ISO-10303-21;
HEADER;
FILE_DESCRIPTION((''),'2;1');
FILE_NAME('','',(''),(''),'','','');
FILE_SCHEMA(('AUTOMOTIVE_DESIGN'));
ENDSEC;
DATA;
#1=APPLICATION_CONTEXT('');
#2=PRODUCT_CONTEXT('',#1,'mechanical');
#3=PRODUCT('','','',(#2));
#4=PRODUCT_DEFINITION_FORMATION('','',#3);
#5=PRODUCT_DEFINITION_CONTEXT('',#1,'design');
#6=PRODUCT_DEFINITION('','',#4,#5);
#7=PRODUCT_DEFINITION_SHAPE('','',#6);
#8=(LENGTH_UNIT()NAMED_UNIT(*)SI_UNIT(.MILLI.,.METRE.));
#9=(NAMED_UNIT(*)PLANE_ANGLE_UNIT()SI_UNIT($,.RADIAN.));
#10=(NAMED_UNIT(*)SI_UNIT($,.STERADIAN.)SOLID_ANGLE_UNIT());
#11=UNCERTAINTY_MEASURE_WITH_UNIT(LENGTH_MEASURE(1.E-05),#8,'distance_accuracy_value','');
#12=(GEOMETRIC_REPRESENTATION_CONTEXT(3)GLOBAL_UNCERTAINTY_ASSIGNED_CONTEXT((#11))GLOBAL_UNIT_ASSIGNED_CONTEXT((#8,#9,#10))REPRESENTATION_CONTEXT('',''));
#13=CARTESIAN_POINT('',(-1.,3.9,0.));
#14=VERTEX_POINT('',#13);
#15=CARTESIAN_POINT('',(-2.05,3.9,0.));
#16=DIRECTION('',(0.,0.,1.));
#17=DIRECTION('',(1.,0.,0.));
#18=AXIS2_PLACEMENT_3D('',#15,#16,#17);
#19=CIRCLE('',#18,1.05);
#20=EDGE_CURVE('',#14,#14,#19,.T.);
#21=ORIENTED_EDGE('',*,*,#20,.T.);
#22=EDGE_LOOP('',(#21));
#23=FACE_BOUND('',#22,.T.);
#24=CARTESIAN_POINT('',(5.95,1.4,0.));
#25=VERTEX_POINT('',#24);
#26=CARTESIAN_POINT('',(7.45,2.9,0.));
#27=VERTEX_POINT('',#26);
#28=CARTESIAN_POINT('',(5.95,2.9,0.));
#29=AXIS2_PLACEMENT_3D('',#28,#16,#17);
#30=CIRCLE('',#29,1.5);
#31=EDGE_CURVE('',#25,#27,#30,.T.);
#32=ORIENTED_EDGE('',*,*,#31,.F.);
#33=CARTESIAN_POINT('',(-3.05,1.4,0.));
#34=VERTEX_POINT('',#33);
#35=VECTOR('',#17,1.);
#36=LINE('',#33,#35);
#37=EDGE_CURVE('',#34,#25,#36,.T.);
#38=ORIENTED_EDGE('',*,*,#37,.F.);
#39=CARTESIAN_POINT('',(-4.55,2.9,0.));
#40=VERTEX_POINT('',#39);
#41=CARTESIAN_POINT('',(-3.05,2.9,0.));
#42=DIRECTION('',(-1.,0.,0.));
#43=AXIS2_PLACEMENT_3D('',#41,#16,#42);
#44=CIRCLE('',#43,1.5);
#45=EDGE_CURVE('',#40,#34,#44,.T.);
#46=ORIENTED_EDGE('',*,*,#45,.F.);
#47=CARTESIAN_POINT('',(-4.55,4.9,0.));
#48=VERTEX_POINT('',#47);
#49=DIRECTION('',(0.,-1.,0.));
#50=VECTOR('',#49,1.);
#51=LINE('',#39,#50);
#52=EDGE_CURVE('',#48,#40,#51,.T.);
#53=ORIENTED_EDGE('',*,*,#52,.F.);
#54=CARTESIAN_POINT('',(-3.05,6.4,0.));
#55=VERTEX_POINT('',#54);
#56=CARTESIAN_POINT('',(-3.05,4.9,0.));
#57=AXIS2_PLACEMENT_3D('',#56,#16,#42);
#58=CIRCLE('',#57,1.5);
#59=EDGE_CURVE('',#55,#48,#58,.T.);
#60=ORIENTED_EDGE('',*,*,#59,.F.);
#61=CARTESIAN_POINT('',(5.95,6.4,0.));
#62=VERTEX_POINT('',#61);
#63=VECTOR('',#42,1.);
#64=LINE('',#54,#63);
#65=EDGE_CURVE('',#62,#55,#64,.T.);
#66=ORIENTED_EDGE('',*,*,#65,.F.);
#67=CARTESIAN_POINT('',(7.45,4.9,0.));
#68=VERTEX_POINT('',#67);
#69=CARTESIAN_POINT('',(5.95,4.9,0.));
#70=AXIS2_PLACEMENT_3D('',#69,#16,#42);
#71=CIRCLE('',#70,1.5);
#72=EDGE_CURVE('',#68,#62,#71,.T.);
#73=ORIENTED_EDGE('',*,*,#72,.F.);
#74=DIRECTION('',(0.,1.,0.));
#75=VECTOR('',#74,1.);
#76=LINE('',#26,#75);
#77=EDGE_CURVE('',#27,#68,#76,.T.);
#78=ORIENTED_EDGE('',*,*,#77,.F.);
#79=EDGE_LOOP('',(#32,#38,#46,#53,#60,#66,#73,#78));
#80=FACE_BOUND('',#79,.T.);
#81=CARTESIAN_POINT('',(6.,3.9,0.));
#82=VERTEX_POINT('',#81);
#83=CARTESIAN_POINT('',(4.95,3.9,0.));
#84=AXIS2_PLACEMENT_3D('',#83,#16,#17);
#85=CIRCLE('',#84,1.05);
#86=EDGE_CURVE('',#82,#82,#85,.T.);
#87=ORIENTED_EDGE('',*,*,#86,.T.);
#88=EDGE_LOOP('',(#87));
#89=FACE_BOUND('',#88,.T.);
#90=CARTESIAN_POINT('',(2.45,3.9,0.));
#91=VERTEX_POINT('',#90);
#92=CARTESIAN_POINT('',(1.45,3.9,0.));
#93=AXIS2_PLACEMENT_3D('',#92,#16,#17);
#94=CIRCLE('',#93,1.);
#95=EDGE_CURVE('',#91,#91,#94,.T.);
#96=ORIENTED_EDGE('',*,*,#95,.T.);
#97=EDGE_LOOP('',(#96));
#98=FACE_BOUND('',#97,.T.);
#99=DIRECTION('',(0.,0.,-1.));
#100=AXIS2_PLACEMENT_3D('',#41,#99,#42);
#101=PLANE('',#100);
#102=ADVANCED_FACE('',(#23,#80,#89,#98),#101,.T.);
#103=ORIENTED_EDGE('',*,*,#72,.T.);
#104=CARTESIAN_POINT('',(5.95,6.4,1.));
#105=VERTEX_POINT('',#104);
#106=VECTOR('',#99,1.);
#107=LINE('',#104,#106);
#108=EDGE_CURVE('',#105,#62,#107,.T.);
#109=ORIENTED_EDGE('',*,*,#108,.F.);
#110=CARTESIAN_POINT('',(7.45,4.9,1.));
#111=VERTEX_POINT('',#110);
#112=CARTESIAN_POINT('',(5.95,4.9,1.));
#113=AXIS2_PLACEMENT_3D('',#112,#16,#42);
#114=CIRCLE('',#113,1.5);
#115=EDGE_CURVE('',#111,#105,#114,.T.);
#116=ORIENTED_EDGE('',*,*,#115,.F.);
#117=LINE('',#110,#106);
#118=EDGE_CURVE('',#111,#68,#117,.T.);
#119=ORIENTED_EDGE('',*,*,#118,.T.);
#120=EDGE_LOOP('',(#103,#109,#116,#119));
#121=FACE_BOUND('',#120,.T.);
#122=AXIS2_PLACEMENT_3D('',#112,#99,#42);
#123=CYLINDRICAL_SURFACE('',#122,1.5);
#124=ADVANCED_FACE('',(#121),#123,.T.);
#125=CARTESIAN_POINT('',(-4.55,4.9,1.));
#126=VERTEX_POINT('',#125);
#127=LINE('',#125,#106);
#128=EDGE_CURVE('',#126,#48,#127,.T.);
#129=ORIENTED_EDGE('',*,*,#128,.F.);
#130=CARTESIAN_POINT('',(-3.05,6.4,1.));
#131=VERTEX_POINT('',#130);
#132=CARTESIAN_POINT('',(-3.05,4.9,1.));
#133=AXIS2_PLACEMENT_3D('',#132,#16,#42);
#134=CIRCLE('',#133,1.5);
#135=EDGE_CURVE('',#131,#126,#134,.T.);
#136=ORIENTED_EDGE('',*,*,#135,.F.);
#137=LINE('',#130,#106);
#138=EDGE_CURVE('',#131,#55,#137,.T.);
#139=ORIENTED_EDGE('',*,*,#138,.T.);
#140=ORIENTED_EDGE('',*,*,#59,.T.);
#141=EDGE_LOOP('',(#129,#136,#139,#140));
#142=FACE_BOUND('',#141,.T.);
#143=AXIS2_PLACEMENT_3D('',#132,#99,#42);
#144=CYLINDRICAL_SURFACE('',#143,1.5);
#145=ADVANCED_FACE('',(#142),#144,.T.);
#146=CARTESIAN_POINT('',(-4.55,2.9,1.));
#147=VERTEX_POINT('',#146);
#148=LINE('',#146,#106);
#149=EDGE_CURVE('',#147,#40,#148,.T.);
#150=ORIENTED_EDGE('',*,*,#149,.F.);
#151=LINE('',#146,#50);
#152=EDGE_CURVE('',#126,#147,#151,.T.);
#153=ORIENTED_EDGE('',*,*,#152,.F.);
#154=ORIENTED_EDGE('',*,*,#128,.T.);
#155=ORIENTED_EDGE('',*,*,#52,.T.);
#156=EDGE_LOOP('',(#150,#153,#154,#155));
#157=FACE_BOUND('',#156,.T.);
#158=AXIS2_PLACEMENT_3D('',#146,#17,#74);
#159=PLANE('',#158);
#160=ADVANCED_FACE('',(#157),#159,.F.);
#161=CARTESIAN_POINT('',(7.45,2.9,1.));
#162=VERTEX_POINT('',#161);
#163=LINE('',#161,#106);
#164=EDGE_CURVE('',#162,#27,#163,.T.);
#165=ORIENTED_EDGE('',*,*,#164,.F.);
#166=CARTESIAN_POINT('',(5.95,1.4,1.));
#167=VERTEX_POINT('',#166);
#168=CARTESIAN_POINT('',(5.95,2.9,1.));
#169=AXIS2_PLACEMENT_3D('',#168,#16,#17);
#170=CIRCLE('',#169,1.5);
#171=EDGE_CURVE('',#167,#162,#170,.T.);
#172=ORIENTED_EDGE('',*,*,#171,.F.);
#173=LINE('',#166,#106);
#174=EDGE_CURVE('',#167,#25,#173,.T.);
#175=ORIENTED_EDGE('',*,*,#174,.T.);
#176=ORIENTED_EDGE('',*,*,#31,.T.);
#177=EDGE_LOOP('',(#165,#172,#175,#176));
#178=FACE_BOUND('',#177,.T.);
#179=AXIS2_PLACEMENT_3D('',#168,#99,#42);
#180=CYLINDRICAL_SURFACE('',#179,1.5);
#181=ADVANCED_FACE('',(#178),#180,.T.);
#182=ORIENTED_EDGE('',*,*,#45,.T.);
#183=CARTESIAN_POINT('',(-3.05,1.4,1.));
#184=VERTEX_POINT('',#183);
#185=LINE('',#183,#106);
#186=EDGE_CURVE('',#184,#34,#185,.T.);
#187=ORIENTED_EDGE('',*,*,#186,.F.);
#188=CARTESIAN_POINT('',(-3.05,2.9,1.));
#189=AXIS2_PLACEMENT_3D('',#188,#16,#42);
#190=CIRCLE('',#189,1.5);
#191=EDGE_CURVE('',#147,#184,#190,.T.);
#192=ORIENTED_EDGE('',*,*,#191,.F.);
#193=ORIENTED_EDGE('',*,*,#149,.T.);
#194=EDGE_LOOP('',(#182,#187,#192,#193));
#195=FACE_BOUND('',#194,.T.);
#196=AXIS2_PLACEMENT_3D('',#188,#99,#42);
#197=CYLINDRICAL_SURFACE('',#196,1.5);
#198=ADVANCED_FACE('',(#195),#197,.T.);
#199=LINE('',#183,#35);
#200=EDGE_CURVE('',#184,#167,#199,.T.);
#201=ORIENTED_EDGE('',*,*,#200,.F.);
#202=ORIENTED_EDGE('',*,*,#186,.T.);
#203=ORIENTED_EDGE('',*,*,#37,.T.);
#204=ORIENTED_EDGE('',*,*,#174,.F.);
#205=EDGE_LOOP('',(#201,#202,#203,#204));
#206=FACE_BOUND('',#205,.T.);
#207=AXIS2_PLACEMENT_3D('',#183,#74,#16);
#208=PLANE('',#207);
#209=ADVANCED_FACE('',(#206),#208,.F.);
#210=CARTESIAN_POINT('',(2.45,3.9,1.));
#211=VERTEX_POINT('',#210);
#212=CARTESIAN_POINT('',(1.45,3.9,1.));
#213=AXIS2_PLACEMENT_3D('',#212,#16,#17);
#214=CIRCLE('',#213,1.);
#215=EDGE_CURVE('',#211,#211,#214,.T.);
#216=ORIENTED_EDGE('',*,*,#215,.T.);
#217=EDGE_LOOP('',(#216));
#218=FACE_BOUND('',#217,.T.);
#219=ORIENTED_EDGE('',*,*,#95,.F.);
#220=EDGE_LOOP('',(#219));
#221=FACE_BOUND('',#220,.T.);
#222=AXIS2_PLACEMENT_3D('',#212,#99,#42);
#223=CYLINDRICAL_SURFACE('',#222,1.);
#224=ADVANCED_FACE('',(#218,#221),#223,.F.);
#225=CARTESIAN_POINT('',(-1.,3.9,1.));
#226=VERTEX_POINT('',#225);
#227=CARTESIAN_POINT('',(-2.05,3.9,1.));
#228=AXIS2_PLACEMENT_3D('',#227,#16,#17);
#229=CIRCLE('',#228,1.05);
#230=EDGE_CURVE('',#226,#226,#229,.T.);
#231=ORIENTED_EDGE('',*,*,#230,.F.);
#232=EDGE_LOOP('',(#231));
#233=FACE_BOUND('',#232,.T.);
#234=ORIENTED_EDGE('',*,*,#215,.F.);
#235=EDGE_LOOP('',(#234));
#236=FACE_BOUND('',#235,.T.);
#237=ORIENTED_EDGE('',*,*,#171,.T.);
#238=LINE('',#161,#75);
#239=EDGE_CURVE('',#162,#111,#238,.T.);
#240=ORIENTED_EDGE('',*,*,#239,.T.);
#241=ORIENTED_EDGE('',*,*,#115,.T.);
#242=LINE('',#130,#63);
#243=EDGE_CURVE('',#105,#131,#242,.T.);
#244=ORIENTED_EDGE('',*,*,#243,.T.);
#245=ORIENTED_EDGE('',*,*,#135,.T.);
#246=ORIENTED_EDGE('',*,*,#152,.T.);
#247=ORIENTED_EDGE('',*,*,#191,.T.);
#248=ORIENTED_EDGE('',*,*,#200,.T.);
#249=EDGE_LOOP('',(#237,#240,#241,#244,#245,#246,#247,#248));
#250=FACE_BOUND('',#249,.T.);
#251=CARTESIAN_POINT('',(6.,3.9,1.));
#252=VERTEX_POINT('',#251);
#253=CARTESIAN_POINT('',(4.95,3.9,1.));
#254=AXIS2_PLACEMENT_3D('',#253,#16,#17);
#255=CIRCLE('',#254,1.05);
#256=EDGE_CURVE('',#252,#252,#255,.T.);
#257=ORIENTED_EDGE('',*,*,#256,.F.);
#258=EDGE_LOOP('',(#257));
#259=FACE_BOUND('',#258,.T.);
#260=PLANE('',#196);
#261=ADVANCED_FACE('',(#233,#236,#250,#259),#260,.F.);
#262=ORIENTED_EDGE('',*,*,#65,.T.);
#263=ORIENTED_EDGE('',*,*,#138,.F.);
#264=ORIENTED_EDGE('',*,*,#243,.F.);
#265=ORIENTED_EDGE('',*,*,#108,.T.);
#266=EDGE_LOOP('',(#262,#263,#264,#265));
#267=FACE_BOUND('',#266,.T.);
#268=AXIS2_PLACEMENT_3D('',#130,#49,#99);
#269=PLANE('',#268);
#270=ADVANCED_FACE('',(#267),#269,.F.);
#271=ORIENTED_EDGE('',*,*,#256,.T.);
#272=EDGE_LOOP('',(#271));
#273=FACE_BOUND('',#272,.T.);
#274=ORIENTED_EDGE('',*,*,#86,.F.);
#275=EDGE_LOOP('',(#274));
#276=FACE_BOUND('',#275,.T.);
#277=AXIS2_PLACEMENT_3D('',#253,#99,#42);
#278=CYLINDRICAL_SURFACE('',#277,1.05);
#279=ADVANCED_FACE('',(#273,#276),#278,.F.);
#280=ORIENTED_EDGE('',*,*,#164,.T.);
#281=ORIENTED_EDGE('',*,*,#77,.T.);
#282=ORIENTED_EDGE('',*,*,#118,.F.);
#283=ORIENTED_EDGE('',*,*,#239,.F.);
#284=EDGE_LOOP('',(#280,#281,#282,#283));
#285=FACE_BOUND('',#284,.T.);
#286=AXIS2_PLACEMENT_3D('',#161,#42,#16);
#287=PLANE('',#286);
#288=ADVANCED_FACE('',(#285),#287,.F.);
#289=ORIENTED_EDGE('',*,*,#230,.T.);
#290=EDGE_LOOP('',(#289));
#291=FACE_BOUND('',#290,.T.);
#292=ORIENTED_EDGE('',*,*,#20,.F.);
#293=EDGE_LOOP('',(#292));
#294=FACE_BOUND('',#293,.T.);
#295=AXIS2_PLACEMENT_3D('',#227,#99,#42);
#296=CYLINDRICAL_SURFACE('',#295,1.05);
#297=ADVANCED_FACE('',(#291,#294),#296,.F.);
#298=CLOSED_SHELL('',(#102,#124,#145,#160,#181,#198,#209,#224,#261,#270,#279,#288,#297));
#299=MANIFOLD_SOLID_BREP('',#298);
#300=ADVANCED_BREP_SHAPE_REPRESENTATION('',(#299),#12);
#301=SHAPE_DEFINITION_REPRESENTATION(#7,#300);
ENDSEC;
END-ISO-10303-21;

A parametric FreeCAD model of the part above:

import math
import FreeCAD as App
import Part
import Sketcher
Q = App.Units.Quantity

doc = App.newDocument("Part")
body = doc.addObject("PartDesign::Body", "Body")

sketch1 = body.newObject("Sketcher::SketchObject", "Sketch")
sketch1.AttachmentSupport = (doc.getObject("XY_Plane"), [""])
sketch1.MapMode = "FlatFace"
sketch1.addGeometry([
    Part.LineSegment(App.Vector(-3, 1.4, 0), App.Vector(6, 1.4, 0)),
    Part.ArcOfCircle(Part.Circle(App.Vector(6, 2.9, 0), App.Vector(0, 0, 1), 1.5), math.radians(-90), math.radians(0)),
    Part.LineSegment(App.Vector(7.5, 2.9, 0), App.Vector(7.5, 4.9, 0)),
    Part.ArcOfCircle(Part.Circle(App.Vector(6, 4.9, 0), App.Vector(0, 0, 1), 1.5), math.radians(0), math.radians(90)),
    Part.LineSegment(App.Vector(6, 6.4, 0), App.Vector(-3, 6.4, 0)),
    Part.ArcOfCircle(Part.Circle(App.Vector(-3.1, 4.9, 0), App.Vector(0, 0, 1), 1.5), math.radians(90), math.radians(180)),
    Part.LineSegment(App.Vector(-4.5, 4.9, 0), App.Vector(-4.5, 2.9, 0)),
    Part.ArcOfCircle(Part.Circle(App.Vector(-3.1, 2.9, 0), App.Vector(0, 0, 1), 1.5), math.radians(180), math.radians(270)),
    Part.Circle(App.Vector(-2, 3.9, 0), App.Vector(0, 0, 1), 1.1),
    Part.Circle(App.Vector(1.4, 3.9, 0), App.Vector(0, 0, 1), 1),
    Part.Circle(App.Vector(5, 3.9, 0), App.Vector(0, 0, 1), 1.1),
], False)
sketch1.addConstraint([
    Sketcher.Constraint("Tangent", 0, 2, 1, 1),
    Sketcher.Constraint("Tangent", 1, 2, 2, 1),
    Sketcher.Constraint("Tangent", 2, 2, 3, 1),
    Sketcher.Constraint("Tangent", 3, 2, 4, 1),
    Sketcher.Constraint("Tangent", 4, 2, 5, 1),
    Sketcher.Constraint("Tangent", 5, 2, 6, 1),
    Sketcher.Constraint("Tangent", 6, 2, 7, 1),
    Sketcher.Constraint("Tangent", 7, 2, 0, 1),
    Sketcher.Constraint("Horizontal", 0),
    Sketcher.Constraint("Vertical", 2),
    Sketcher.Constraint("Horizontal", 4),
    Sketcher.Constraint("Vertical", 6),
    Sketcher.Constraint("Equal", 1, 3),
    Sketcher.Constraint("Equal", 3, 5),
    Sketcher.Constraint("Equal", 5, 7),
    Sketcher.Constraint("Equal", 8, 10),
    Sketcher.Constraint("Horizontal", 8, 3, 9, 3),
    Sketcher.Constraint("Horizontal", 9, 3, 10, 3),
    Sketcher.Constraint("Diameter", 9, Q("2 mm")),
    Sketcher.Constraint("Diameter", 8, Q("2.1 mm")),
    Sketcher.Constraint("Radius", 1, Q("1.5 mm")),
    Sketcher.Constraint("DistanceX", 0, 1, 0, 2, Q("9 mm")),
    Sketcher.Constraint("DistanceY", 2, 1, 2, 2, Q("2 mm")),
    Sketcher.Constraint("DistanceX", 7, 3, 8, 3, Q("1 mm")),
    Sketcher.Constraint("DistanceY", 7, 3, 8, 3, Q("1 mm")),
    Sketcher.Constraint("DistanceX", 10, 3, 1, 3, Q("1 mm")),
    Sketcher.Constraint("DistanceX", 9, 3, 1, 2, Q("6 mm")),
    Sketcher.Constraint("DistanceY", -1, 1, 1, 3, Q("2.9 mm")),
    Sketcher.Constraint("DistanceX", -1, 1, 1, 3, Q("5.95 mm")),
])
pad1 = body.newObject("PartDesign::Pad", "Pad")
pad1.Profile = sketch1
pad1.Length = 1

doc.recompute()
